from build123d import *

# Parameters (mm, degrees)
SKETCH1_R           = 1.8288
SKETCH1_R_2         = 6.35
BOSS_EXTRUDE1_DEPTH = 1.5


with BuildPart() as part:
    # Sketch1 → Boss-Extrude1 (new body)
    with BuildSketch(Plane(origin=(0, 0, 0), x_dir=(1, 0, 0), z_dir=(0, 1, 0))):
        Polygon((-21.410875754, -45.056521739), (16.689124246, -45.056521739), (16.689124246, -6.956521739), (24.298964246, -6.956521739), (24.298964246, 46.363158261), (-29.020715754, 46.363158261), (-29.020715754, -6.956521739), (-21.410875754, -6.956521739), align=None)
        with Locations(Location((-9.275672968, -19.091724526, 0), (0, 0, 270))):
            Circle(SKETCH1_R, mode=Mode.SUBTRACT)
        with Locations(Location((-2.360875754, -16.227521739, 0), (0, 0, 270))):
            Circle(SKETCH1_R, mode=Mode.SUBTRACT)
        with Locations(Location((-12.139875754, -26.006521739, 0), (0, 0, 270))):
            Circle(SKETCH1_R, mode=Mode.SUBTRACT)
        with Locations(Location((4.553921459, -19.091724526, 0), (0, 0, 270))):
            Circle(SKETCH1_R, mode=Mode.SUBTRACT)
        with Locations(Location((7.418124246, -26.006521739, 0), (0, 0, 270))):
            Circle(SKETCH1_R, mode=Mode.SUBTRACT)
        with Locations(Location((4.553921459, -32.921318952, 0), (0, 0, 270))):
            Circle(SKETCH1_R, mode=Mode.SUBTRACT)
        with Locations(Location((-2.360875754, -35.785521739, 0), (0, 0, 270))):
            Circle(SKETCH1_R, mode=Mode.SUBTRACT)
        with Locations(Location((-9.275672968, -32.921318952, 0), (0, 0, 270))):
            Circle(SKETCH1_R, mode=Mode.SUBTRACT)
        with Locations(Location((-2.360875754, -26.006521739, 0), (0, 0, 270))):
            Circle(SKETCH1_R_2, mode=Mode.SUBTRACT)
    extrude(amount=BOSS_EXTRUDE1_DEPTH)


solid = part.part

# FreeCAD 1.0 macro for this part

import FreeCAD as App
import Part
import Sketcher

V = App.Vector
Q = App.Units.Quantity


def add_polygon(sketch, points):
    """Adds a closed chain of lines whose ends are joined by coincident constraints."""
    first, n = sketch.GeometryCount, len(points)
    for a, b in zip(points, points[1:] + points[:1]):
        sketch.addGeometry(Part.LineSegment(App.Vector(*a, 0), App.Vector(*b, 0)), False)
    for i in range(n):
        sketch.addConstraint(Sketcher.Constraint("Coincident", first + i, 2, first + (i + 1) % n, 1))

doc = App.newDocument("Part")
body = doc.addObject("PartDesign::Body", "Body")

# Sketch on XZ plane
sketch1 = doc.addObject("Sketcher::SketchObject", "Sketch")
body.addObject(sketch1)
sketch1.AttachmentSupport = (doc.XZ_Plane, [""])
sketch1.MapMode = "FlatFace"
add_polygon(sketch1, [(-21.410876, 45.056522), (16.689124, 45.056522), (16.689124, 6.956522), (24.298964, 6.956522), (24.298964, -46.363158), (-29.020716, -46.363158), (-29.020716, 6.956522), (-21.410876, 6.956522)])  # lines 0-7
sketch1.addGeometry(Part.Circle(V(-9.275673, 32.921319, 0), V(0, 0, 1), 1.8288), False)  # 8
sketch1.addGeometry(Part.Circle(V(-2.360876, 35.785522, 0), V(0, 0, 1), 1.8288), False)  # 9
sketch1.addGeometry(Part.Circle(V(4.553921, 32.921319, 0), V(0, 0, 1), 1.8288), False)  # 10
sketch1.addGeometry(Part.Circle(V(-12.139876, 26.006522, 0), V(0, 0, 1), 1.8288), False)  # 11
sketch1.addGeometry(Part.Circle(V(-9.275673, 19.091725, 0), V(0, 0, 1), 1.8288), False)  # 12
sketch1.addGeometry(Part.Circle(V(-2.360876, 26.006522, 0), V(0, 0, 1), 6.35), False)  # 13
sketch1.addGeometry(Part.Circle(V(7.418124, 26.006522, 0), V(0, 0, 1), 1.8288), False)  # 14
sketch1.addGeometry(Part.Circle(V(-2.360876, 16.227522, 0), V(0, 0, 1), 1.8288), False)  # 15
sketch1.addGeometry(Part.Circle(V(4.553921, 19.091725, 0), V(0, 0, 1), 1.8288), False)  # 16
sketch1.addConstraint([
    Sketcher.Constraint("Horizontal", 0),
    Sketcher.Constraint("Vertical", 1),
    Sketcher.Constraint("Horizontal", 2),
    Sketcher.Constraint("Vertical", 3),
    Sketcher.Constraint("Horizontal", 4),
    Sketcher.Constraint("Vertical", 5),
    Sketcher.Constraint("Horizontal", 6),
    Sketcher.Constraint("Vertical", 7),
    Sketcher.Constraint("Equal", 8, 9),
    Sketcher.Constraint("Equal", 9, 10),
    Sketcher.Constraint("Equal", 10, 11),
    Sketcher.Constraint("Equal", 11, 12),
    Sketcher.Constraint("Equal", 12, 14),
    Sketcher.Constraint("Equal", 14, 15),
    Sketcher.Constraint("Equal", 15, 16),
    Sketcher.Constraint("Horizontal", 8, 3, 10, 3),
    Sketcher.Constraint("Horizontal", 11, 3, 13, 3),
    Sketcher.Constraint("Horizontal", 13, 3, 14, 3),
    Sketcher.Constraint("Horizontal", 12, 3, 16, 3),
    Sketcher.Constraint("Horizontal", 2, 2, 5, 2),
    Sketcher.Constraint("Vertical", 8, 3, 12, 3),
    Sketcher.Constraint("Vertical", 9, 3, 13, 3),
    Sketcher.Constraint("Vertical", 13, 3, 15, 3),
    Sketcher.Constraint("Vertical", 10, 3, 16, 3),
    Sketcher.Constraint("Equal", 2, 6),
    Sketcher.Constraint("Equal", 0, 1),
    Sketcher.Constraint("Equal", 4, 3),
    Sketcher.Constraint("Diameter", 13, Q("0.5 in")),
    Sketcher.Constraint("Diameter", 8, Q("0.144 in")),
    Sketcher.Constraint("DistanceX", 0, 1, 0, 2, Q("1.5 in")),
    Sketcher.Constraint("DistanceX", 9, 3, 0, 2, Q("0.75 in")),
    Sketcher.Constraint("DistanceY", 14, 3, 0, 2, Q("0.75 in")),
    Sketcher.Constraint("DistanceX", 2, 1, 2, 2, Q("0.2996 in")),
    Sketcher.Constraint("DistanceX", 11, 3, 9, 3, Q("0.385 in")),
    Sketcher.Constraint("DistanceY", 11, 3, 9, 3, Q("0.385 in")),
    Sketcher.Constraint("DistanceX", 13, 3, 14, 3, Q("0.385 in")),
    Sketcher.Constraint("DistanceY", 15, 3, 13, 3, Q("0.385 in")),
    Sketcher.Constraint("DistanceY", -1, 1, 8, 3, 32.921319),
    Sketcher.Constraint("DistanceY", -1, 1, 9, 3, 35.785522),
    Sketcher.Constraint("DistanceX", -1, 1, 10, 3, 4.553921),
    Sketcher.Constraint("DistanceX", 8, 3, -1, 1, 9.275673),
    Sketcher.Constraint("DistanceX", 9, 3, -1, 1, 2.360876),
    Sketcher.Constraint("DistanceY", -1, 1, 12, 3, 19.091725),
])
pad1 = doc.addObject("PartDesign::Pad", "Pad")
body.addObject(pad1)
pad1.Profile = sketch1
pad1.Length = 1.5
pad1.Reversed = True

doc.recompute()
